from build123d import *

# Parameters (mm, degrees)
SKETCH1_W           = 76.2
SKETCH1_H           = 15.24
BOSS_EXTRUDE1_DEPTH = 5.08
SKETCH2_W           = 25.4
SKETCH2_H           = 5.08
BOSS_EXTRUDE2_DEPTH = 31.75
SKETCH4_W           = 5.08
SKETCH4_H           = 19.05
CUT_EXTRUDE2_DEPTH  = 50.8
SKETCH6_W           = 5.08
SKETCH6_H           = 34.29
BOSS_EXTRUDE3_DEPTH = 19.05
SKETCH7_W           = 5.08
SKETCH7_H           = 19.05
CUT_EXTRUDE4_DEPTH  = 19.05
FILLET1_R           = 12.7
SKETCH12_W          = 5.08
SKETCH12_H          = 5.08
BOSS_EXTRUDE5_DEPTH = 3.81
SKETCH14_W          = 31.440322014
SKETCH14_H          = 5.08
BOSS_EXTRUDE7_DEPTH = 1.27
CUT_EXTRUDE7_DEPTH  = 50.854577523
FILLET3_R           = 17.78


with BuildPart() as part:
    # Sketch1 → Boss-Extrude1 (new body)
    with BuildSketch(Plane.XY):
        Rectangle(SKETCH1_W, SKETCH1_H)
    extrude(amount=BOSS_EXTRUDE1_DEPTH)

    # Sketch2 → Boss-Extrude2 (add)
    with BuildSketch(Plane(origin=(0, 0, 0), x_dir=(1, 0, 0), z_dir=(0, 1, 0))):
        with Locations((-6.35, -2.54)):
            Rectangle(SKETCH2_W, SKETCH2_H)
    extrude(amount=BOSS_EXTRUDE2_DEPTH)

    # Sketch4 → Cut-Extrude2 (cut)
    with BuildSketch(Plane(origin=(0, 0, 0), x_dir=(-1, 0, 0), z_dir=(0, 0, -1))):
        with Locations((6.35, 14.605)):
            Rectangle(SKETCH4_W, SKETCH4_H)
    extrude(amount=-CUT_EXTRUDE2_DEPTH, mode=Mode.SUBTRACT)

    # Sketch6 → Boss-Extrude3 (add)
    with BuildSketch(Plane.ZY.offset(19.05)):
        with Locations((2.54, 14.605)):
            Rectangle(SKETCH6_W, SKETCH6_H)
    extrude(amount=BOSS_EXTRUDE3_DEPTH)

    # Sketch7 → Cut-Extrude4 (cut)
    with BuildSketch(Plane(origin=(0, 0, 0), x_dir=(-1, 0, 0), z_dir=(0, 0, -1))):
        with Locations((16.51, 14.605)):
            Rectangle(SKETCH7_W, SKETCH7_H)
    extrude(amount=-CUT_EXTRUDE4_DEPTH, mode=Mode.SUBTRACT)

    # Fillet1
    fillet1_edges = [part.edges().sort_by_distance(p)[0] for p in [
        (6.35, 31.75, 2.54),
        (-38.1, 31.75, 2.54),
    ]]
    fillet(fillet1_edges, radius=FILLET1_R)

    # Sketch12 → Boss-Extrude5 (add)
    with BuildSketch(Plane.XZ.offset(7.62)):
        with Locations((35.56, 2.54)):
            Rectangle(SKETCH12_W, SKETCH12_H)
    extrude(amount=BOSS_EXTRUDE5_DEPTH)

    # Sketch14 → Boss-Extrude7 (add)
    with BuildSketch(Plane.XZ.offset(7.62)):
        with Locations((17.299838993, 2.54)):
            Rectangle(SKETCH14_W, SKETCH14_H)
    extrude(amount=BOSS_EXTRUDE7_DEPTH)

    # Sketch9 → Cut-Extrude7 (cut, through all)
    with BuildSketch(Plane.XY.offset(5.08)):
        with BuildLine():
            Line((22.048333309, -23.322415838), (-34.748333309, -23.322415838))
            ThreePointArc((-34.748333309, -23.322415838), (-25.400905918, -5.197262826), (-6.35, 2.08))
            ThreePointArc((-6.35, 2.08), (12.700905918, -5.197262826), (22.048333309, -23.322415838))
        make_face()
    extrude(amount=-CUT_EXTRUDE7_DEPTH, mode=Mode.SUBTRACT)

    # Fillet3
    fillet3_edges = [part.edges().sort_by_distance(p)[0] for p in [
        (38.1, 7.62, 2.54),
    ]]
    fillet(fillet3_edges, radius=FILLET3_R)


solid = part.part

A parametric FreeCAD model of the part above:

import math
import FreeCAD as App
import Part
import Sketcher
from FreeCAD import Vector
Q = App.Units.Quantity


def edges_at(feature, points):
    """Names of the edges that pass closest to the given points."""
    edges = feature.Shape.Edges
    near = lambda p: min(range(len(edges)), key=lambda i: edges[i].distToShape(Part.Vertex(*p))[0])
    return sorted({f"Edge{near(p) + 1}" for p in points})

doc = App.newDocument("Part")
body = doc.addObject("PartDesign::Body", "Body")

# Sketch on XY plane
sketch1 = doc.addObject("Sketcher::SketchObject", "Sketch")
body.addObject(sketch1)
sketch1.AttachmentSupport = (doc.XY_Plane, [""])
sketch1.MapMode = "FlatFace"
sketch1.addGeometry(Part.LineSegment(Vector(-38, 8, 0), Vector(-38, -8, 0)), False)
sketch1.addGeometry(Part.LineSegment(Vector(-38, -8, 0), Vector(38, -8, 0)), False)
sketch1.addGeometry(Part.LineSegment(Vector(38, -8, 0), Vector(38, 8, 0)), False)
sketch1.addGeometry(Part.LineSegment(Vector(38, 8, 0), Vector(-38, 8, 0)), False)
sketch1.addConstraint(Sketcher.Constraint("Coincident", 0, 2, 1, 1))
sketch1.addConstraint(Sketcher.Constraint("Coincident", 1, 2, 2, 1))
sketch1.addConstraint(Sketcher.Constraint("Coincident", 2, 2, 3, 1))
sketch1.addConstraint(Sketcher.Constraint("Coincident", 3, 2, 0, 1))
sketch1.addConstraint(Sketcher.Constraint("Vertical", 0))
sketch1.addConstraint(Sketcher.Constraint("Horizontal", 1))
sketch1.addConstraint(Sketcher.Constraint("Vertical", 2))
sketch1.addConstraint(Sketcher.Constraint("Horizontal", 3))
sketch1.addConstraint(Sketcher.Constraint("Symmetric", 0, 2, 2, 2, -1, 1))
sketch1.addConstraint(Sketcher.Constraint("DistanceX", 1, 1, 1, 2, Q("3 in")))
sketch1.addConstraint(Sketcher.Constraint("DistanceY", 0, 2, 0, 1, Q("0.6 in")))
pad1 = doc.addObject("PartDesign::Pad", "Pad")
body.addObject(pad1)
pad1.Profile = sketch1
pad1.Length = Q("0.2 in")

# Sketch on XZ plane
sketch2 = doc.addObject("Sketcher::SketchObject", "Sketch001")
body.addObject(sketch2)
sketch2.AttachmentSupport = (doc.XZ_Plane, [""])
sketch2.MapMode = "FlatFace"
sketch2.addGeometry(Part.LineSegment(Vector(-19, 0, 0), Vector(-19, 5, 0)), False)
sketch2.addGeometry(Part.LineSegment(Vector(-19, 5, 0), Vector(6, 5, 0)), False)
sketch2.addGeometry(Part.LineSegment(Vector(6, 5, 0), Vector(6, 0, 0)), False)
sketch2.addGeometry(Part.LineSegment(Vector(6, 0, 0), Vector(-19, 0, 0)), False)
sketch2.addConstraint(Sketcher.Constraint("Coincident", 0, 2, 1, 1))
sketch2.addConstraint(Sketcher.Constraint("Coincident", 1, 2, 2, 1))
sketch2.addConstraint(Sketcher.Constraint("Coincident", 2, 2, 3, 1))
sketch2.addConstraint(Sketcher.Constraint("Coincident", 3, 2, 0, 1))
sketch2.addConstraint(Sketcher.Constraint("Vertical", 0))
sketch2.addConstraint(Sketcher.Constraint("Horizontal", 1))
sketch2.addConstraint(Sketcher.Constraint("Vertical", 2))
sketch2.addConstraint(Sketcher.Constraint("Horizontal", 3))
sketch2.addConstraint(Sketcher.Constraint("PointOnObject", 2, 2, -1))
sketch2.addConstraint(Sketcher.Constraint("DistanceX", 1, 1, 1, 2, Q("1 in")))
sketch2.addConstraint(Sketcher.Constraint("DistanceY", 0, 1, 0, 2, Q("0.2 in")))
sketch2.addConstraint(Sketcher.Constraint("DistanceX", 0, 2, -1, 1, Q("0.75 in")))
pad2 = doc.addObject("PartDesign::Pad", "Pad001")
body.addObject(pad2)
pad2.Profile = sketch2
pad2.Length = Q("1.25 in")
pad2.Reversed = True

# Sketch on XY plane
sketch3 = doc.addObject("Sketcher::SketchObject", "Sketch002")
body.addObject(sketch3)
sketch3.AttachmentSupport = (doc.XY_Plane, [""])
sketch3.MapMode = "FlatFace"
sketch3.addGeometry(Part.LineSegment(Vector(-4, 24, 0), Vector(-4, 5, 0)), False)
sketch3.addGeometry(Part.LineSegment(Vector(-4, 5, 0), Vector(-9, 5, 0)), False)
sketch3.addGeometry(Part.LineSegment(Vector(-9, 5, 0), Vector(-9, 24, 0)), False)
sketch3.addGeometry(Part.LineSegment(Vector(-9, 24, 0), Vector(-4, 24, 0)), False)
sketch3.addConstraint(Sketcher.Constraint("Coincident", 0, 2, 1, 1))
sketch3.addConstraint(Sketcher.Constraint("Coincident", 1, 2, 2, 1))
sketch3.addConstraint(Sketcher.Constraint("Coincident", 2, 2, 3, 1))
sketch3.addConstraint(Sketcher.Constraint("Coincident", 3, 2, 0, 1))
sketch3.addConstraint(Sketcher.Constraint("Vertical", 0))
sketch3.addConstraint(Sketcher.Constraint("Horizontal", 1))
sketch3.addConstraint(Sketcher.Constraint("Vertical", 2))
sketch3.addConstraint(Sketcher.Constraint("Horizontal", 3))
sketch3.addConstraint(Sketcher.Constraint("DistanceX", 1, 2, 1, 1, Q("0.2 in")))
sketch3.addConstraint(Sketcher.Constraint("DistanceY", 0, 2, 0, 1, Q("0.75 in")))
sketch3.addConstraint(Sketcher.Constraint("DistanceY", -1, 1, 0, 2, Q("0.2 in")))
sketch3.addConstraint(Sketcher.Constraint("DistanceX", 0, 2, -1, 1, Q("0.15 in")))
pocket1 = doc.addObject("PartDesign::Pocket", "Pocket")
body.addObject(pocket1)
pocket1.Profile = sketch3
pocket1.Length = Q("2 in")
pocket1.Reversed = True

# Sketch on YZ plane
sketch4 = doc.addObject("Sketcher::SketchObject", "Sketch003")
body.addObject(sketch4)
sketch4.AttachmentSupport = (doc.YZ_Plane, [""])
sketch4.MapMode = "FlatFace"
sketch4.AttachmentOffset = App.Placement(Vector(0, 0, -0.75 * 25.4), App.Rotation())
sketch4.addGeometry(Part.LineSegment(Vector(32, 0, 0), Vector(-3, 0, 0)), False)
sketch4.addGeometry(Part.LineSegment(Vector(-3, 0, 0), Vector(-3, 5, 0)), False)
sketch4.addGeometry(Part.LineSegment(Vector(-3, 5, 0), Vector(32, 5, 0)), False)
sketch4.addGeometry(Part.LineSegment(Vector(32, 5, 0), Vector(32, 0, 0)), False)
sketch4.addConstraint(Sketcher.Constraint("Coincident", 0, 2, 1, 1))
sketch4.addConstraint(Sketcher.Constraint("Coincident", 1, 2, 2, 1))
sketch4.addConstraint(Sketcher.Constraint("Coincident", 2, 2, 3, 1))
sketch4.addConstraint(Sketcher.Constraint("Coincident", 3, 2, 0, 1))
sketch4.addConstraint(Sketcher.Constraint("Horizontal", 0))
sketch4.addConstraint(Sketcher.Constraint("Vertical", 1))
sketch4.addConstraint(Sketcher.Constraint("Horizontal", 2))
sketch4.addConstraint(Sketcher.Constraint("Vertical", 3))
sketch4.addConstraint(Sketcher.Constraint("PointOnObject", 0, 2, -1))
sketch4.addConstraint(Sketcher.Constraint("DistanceY", 1, 1, 1, 2, Q("0.2 in")))
sketch4.addConstraint(Sketcher.Constraint("DistanceX", 0, 2, 0, 1, Q("1.35 in")))
sketch4.addConstraint(Sketcher.Constraint("DistanceX", 0, 2, -1, 1, Q("0.1 in")))
pad3 = doc.addObject("PartDesign::Pad", "Pad002")
body.addObject(pad3)
pad3.Profile = sketch4
pad3.Length = Q("0.75 in")
pad3.Reversed = True

# Sketch on XY plane
sketch5 = doc.addObject("Sketcher::SketchObject", "Sketch004")
body.addObject(sketch5)
sketch5.AttachmentSupport = (doc.XY_Plane, [""])
sketch5.MapMode = "FlatFace"
sketch5.addGeometry(Part.LineSegment(Vector(-14, 24, 0), Vector(-14, 5, 0)), False)
sketch5.addGeometry(Part.LineSegment(Vector(-14, 5, 0), Vector(-19, 5, 0)), False)
sketch5.addGeometry(Part.LineSegment(Vector(-19, 5, 0), Vector(-19, 24, 0)), False)
sketch5.addGeometry(Part.LineSegment(Vector(-19, 24, 0), Vector(-14, 24, 0)), False)
sketch5.addConstraint(Sketcher.Constraint("Coincident", 0, 2, 1, 1))
sketch5.addConstraint(Sketcher.Constraint("Coincident", 1, 2, 2, 1))
sketch5.addConstraint(Sketcher.Constraint("Coincident", 2, 2, 3, 1))
sketch5.addConstraint(Sketcher.Constraint("Coincident", 3, 2, 0, 1))
sketch5.addConstraint(Sketcher.Constraint("Vertical", 0))
sketch5.addConstraint(Sketcher.Constraint("Horizontal", 1))
sketch5.addConstraint(Sketcher.Constraint("Vertical", 2))
sketch5.addConstraint(Sketcher.Constraint("Horizontal", 3))
sketch5.addConstraint(Sketcher.Constraint("DistanceX", 1, 2, 1, 1, Q("0.2 in")))
sketch5.addConstraint(Sketcher.Constraint("DistanceY", 0, 2, 0, 1, Q("0.75 in")))
sketch5.addConstraint(Sketcher.Constraint("DistanceY", -1, 1, 0, 2, Q("0.2 in")))
sketch5.addConstraint(Sketcher.Constraint("DistanceX", 0, 2, -1, 1, Q("0.55 in")))
pocket2 = doc.addObject("PartDesign::Pocket", "Pocket001")
body.addObject(pocket2)
pocket2.Profile = sketch5
pocket2.Length = Q("0.75 in")
pocket2.Reversed = True
doc.recompute()

fillet = doc.addObject("PartDesign::Fillet", "Fillet")
body.addObject(fillet)
fillet.Base = (pocket2, edges_at(pocket2, [(6.35, 31.75, 2.54), (-38.1, 31.75, 2.54)]))
fillet.Radius = Q("0.5 in")

# Sketch on XZ plane
sketch6 = doc.addObject("Sketcher::SketchObject", "Sketch005")
body.addObject(sketch6)
sketch6.AttachmentSupport = (doc.XZ_Plane, [""])
sketch6.MapMode = "FlatFace"
sketch6.AttachmentOffset = App.Placement(Vector(0, 0, 0.3 * 25.4), App.Rotation())
sketch6.addGeometry(Part.LineSegment(Vector(33, 5, 0), Vector(33, 0, 0)), False)
sketch6.addGeometry(Part.LineSegment(Vector(33, 0, 0), Vector(38, 0, 0)), False)
sketch6.addGeometry(Part.LineSegment(Vector(38, 0, 0), Vector(38, 5, 0)), False)
sketch6.addGeometry(Part.LineSegment(Vector(38, 5, 0), Vector(33, 5, 0)), False)
sketch6.addConstraint(Sketcher.Constraint("Coincident", 0, 2, 1, 1))
sketch6.addConstraint(Sketcher.Constraint("Coincident", 1, 2, 2, 1))
sketch6.addConstraint(Sketcher.Constraint("Coincident", 2, 2, 3, 1))
sketch6.addConstraint(Sketcher.Constraint("Coincident", 3, 2, 0, 1))
sketch6.addConstraint(Sketcher.Constraint("Vertical", 0))
sketch6.addConstraint(Sketcher.Constraint("Horizontal", 1))
sketch6.addConstraint(Sketcher.Constraint("Vertical", 2))
sketch6.addConstraint(Sketcher.Constraint("Horizontal", 3))
sketch6.addConstraint(Sketcher.Constraint("PointOnObject", 0, 2, -1))
sketch6.addConstraint(Sketcher.Constraint("Equal", 3, 0))
sketch6.addConstraint(Sketcher.Constraint("DistanceX", 1, 1, 1, 2, Q("0.2 in")))
sketch6.addConstraint(Sketcher.Constraint("DistanceX", -1, 1, 0, 2, Q("1.3 in")))
pad4 = doc.addObject("PartDesign::Pad", "Pad003")
body.addObject(pad4)
pad4.Profile = sketch6
pad4.Length = Q("0.15 in")

# Sketch on XZ plane
sketch7 = doc.addObject("Sketcher::SketchObject", "Sketch006")
body.addObject(sketch7)
sketch7.AttachmentSupport = (doc.XZ_Plane, [""])
sketch7.MapMode = "FlatFace"
sketch7.AttachmentOffset = App.Placement(Vector(0, 0, 0.3 * 25.4), App.Rotation())
sketch7.addGeometry(Part.LineSegment(Vector(2, 5, 0), Vector(2, 0, 0)), False)
sketch7.addGeometry(Part.LineSegment(Vector(2, 0, 0), Vector(33, 0, 0)), False)
sketch7.addGeometry(Part.LineSegment(Vector(33, 0, 0), Vector(33, 5, 0)), False)
sketch7.addGeometry(Part.LineSegment(Vector(33, 5, 0), Vector(2, 5, 0)), False)
sketch7.addConstraint(Sketcher.Constraint("Coincident", 0, 2, 1, 1))
sketch7.addConstraint(Sketcher.Constraint("Coincident", 1, 2, 2, 1))
sketch7.addConstraint(Sketcher.Constraint("Coincident", 2, 2, 3, 1))
sketch7.addConstraint(Sketcher.Constraint("Coincident", 3, 2, 0, 1))
sketch7.addConstraint(Sketcher.Constraint("Vertical", 0))
sketch7.addConstraint(Sketcher.Constraint("Horizontal", 1))
sketch7.addConstraint(Sketcher.Constraint("Vertical", 2))
sketch7.addConstraint(Sketcher.Constraint("Horizontal", 3))
sketch7.addConstraint(Sketcher.Constraint("PointOnObject", 0, 2, -1))
sketch7.addConstraint(Sketcher.Constraint("DistanceY", 0, 2, 0, 1, Q("0.2 in")))
sketch7.addConstraint(Sketcher.Constraint("DistanceX", -1, 1, 1, 2, Q("1.3 in")))
sketch7.addConstraint(Sketcher.Constraint("DistanceX", 1, 1, 1, 2, 31.440322))
pad5 = doc.addObject("PartDesign::Pad", "Pad004")
body.addObject(pad5)
pad5.Profile = sketch7
pad5.Length = Q("0.05 in")

# Sketch on XY plane
sketch8 = doc.addObject("Sketcher::SketchObject", "Sketch007")
body.addObject(sketch8)
sketch8.AttachmentSupport = (doc.XY_Plane, [""])
sketch8.MapMode = "FlatFace"
sketch8.AttachmentOffset = App.Placement(Vector(0, 0, 0.2 * 25.4), App.Rotation())
sketch8.addGeometry(Part.LineSegment(Vector(-35, -23, 0), Vector(22, -23, 0)), False)
sketch8.addGeometry(Part.ArcOfCircle(Part.Circle(Vector(-6, -26, 0), Vector(0, 0, 1), 29), math.radians(6), math.radians(90)), False)
sketch8.addGeometry(Part.ArcOfCircle(Part.Circle(Vector(-6, -26, 0), Vector(0, 0, 1), 29), math.radians(90), math.radians(174)), False)
sketch8.addConstraint(Sketcher.Constraint("Coincident", 0, 2, 1, 1))
sketch8.addConstraint(Sketcher.Constraint("Tangent", 1, 2, 2, 1))
sketch8.addConstraint(Sketcher.Constraint("Coincident", 2, 2, 0, 1))
sketch8.addConstraint(Sketcher.Constraint("Horizontal", 0))
sketch8.addConstraint(Sketcher.Constraint("Equal", 1, 2))
sketch8.addConstraint(Sketcher.Constraint("Vertical", 2, 3, 1, 2))
sketch8.addConstraint(Sketcher.Constraint("Radius", 1, Q("1.125 in")))
sketch8.addConstraint(Sketcher.Constraint("DistanceX", 1, 3, -1, 1, Q("0.25 in")))
sketch8.addConstraint(Sketcher.Constraint("DistanceY", 1, 3, -1, 1, 26.495))
sketch8.addConstraint(Sketcher.Constraint("DistanceX", 0, 1, 0, 2, 56.796667))
pocket3 = doc.addObject("PartDesign::Pocket", "Pocket002")
body.addObject(pocket3)
pocket3.Profile = sketch8
pocket3.Type = "ThroughAll"
doc.recompute()

fillet2 = doc.addObject("PartDesign::Fillet", "Fillet001")
body.addObject(fillet2)
fillet2.Base = (pocket3, edges_at(pocket3, [(38.1, 7.62, 2.54)]))
fillet2.Radius = Q("0.7 in")

doc.recompute()
